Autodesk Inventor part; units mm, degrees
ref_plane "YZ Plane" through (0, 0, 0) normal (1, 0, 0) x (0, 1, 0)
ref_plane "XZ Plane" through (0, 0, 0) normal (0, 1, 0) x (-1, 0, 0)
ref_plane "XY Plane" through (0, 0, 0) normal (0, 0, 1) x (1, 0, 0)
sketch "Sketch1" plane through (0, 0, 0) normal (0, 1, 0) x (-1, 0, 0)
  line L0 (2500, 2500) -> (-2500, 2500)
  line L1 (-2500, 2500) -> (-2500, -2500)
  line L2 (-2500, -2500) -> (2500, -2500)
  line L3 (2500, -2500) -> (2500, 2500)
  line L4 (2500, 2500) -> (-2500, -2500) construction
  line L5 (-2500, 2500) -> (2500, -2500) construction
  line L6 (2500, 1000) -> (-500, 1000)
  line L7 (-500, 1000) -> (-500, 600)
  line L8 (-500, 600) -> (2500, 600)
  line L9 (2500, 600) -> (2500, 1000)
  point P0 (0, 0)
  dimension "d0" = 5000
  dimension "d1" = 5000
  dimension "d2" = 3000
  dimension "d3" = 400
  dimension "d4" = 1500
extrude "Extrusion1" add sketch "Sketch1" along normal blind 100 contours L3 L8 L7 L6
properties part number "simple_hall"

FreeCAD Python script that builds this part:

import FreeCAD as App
import Part
import Sketcher
from FreeCAD import Vector


def add_polygon(sketch, points):
    """Adds a closed chain of lines whose ends are joined by coincident constraints."""
    first, n = sketch.GeometryCount, len(points)
    for a, b in zip(points, points[1:] + points[:1]):
        sketch.addGeometry(Part.LineSegment(App.Vector(*a, 0), App.Vector(*b, 0)), False)
    for i in range(n):
        sketch.addConstraint(Sketcher.Constraint("Coincident", first + i, 2, first + (i + 1) % n, 1))

doc = App.newDocument("Part")
body = doc.addObject("PartDesign::Body", "Body")

# Sketch on XZ plane
sketch1 = doc.addObject("Sketcher::SketchObject", "Sketch")
body.addObject(sketch1)
sketch1.AttachmentSupport = (doc.XZ_Plane, [""])
sketch1.MapMode = "FlatFace"
add_polygon(sketch1, [(-2500, 600), (-2500, 1000), (500, 1000), (500, 600)])  # lines 0-3
sketch1.addConstraint(Sketcher.Constraint("Vertical", 0))
sketch1.addConstraint(Sketcher.Constraint("Horizontal", 1))
sketch1.addConstraint(Sketcher.Constraint("Vertical", 2))
sketch1.addConstraint(Sketcher.Constraint("Horizontal", 3))
sketch1.addConstraint(Sketcher.Constraint("DistanceX", 1, 1, 1, 2, 3000.0))
sketch1.addConstraint(Sketcher.Constraint("DistanceY", 0, 1, 0, 2, 400.0))
sketch1.addConstraint(Sketcher.Constraint("DistanceX", 0, 2, -1, 1, 2500.0))
sketch1.addConstraint(Sketcher.Constraint("DistanceY", -1, 1, 0, 2, 1000.0))
pad1 = doc.addObject("PartDesign::Pad", "Pad")
body.addObject(pad1)
pad1.Profile = sketch1
pad1.Length = 100
pad1.Reversed = True

doc.recompute()
